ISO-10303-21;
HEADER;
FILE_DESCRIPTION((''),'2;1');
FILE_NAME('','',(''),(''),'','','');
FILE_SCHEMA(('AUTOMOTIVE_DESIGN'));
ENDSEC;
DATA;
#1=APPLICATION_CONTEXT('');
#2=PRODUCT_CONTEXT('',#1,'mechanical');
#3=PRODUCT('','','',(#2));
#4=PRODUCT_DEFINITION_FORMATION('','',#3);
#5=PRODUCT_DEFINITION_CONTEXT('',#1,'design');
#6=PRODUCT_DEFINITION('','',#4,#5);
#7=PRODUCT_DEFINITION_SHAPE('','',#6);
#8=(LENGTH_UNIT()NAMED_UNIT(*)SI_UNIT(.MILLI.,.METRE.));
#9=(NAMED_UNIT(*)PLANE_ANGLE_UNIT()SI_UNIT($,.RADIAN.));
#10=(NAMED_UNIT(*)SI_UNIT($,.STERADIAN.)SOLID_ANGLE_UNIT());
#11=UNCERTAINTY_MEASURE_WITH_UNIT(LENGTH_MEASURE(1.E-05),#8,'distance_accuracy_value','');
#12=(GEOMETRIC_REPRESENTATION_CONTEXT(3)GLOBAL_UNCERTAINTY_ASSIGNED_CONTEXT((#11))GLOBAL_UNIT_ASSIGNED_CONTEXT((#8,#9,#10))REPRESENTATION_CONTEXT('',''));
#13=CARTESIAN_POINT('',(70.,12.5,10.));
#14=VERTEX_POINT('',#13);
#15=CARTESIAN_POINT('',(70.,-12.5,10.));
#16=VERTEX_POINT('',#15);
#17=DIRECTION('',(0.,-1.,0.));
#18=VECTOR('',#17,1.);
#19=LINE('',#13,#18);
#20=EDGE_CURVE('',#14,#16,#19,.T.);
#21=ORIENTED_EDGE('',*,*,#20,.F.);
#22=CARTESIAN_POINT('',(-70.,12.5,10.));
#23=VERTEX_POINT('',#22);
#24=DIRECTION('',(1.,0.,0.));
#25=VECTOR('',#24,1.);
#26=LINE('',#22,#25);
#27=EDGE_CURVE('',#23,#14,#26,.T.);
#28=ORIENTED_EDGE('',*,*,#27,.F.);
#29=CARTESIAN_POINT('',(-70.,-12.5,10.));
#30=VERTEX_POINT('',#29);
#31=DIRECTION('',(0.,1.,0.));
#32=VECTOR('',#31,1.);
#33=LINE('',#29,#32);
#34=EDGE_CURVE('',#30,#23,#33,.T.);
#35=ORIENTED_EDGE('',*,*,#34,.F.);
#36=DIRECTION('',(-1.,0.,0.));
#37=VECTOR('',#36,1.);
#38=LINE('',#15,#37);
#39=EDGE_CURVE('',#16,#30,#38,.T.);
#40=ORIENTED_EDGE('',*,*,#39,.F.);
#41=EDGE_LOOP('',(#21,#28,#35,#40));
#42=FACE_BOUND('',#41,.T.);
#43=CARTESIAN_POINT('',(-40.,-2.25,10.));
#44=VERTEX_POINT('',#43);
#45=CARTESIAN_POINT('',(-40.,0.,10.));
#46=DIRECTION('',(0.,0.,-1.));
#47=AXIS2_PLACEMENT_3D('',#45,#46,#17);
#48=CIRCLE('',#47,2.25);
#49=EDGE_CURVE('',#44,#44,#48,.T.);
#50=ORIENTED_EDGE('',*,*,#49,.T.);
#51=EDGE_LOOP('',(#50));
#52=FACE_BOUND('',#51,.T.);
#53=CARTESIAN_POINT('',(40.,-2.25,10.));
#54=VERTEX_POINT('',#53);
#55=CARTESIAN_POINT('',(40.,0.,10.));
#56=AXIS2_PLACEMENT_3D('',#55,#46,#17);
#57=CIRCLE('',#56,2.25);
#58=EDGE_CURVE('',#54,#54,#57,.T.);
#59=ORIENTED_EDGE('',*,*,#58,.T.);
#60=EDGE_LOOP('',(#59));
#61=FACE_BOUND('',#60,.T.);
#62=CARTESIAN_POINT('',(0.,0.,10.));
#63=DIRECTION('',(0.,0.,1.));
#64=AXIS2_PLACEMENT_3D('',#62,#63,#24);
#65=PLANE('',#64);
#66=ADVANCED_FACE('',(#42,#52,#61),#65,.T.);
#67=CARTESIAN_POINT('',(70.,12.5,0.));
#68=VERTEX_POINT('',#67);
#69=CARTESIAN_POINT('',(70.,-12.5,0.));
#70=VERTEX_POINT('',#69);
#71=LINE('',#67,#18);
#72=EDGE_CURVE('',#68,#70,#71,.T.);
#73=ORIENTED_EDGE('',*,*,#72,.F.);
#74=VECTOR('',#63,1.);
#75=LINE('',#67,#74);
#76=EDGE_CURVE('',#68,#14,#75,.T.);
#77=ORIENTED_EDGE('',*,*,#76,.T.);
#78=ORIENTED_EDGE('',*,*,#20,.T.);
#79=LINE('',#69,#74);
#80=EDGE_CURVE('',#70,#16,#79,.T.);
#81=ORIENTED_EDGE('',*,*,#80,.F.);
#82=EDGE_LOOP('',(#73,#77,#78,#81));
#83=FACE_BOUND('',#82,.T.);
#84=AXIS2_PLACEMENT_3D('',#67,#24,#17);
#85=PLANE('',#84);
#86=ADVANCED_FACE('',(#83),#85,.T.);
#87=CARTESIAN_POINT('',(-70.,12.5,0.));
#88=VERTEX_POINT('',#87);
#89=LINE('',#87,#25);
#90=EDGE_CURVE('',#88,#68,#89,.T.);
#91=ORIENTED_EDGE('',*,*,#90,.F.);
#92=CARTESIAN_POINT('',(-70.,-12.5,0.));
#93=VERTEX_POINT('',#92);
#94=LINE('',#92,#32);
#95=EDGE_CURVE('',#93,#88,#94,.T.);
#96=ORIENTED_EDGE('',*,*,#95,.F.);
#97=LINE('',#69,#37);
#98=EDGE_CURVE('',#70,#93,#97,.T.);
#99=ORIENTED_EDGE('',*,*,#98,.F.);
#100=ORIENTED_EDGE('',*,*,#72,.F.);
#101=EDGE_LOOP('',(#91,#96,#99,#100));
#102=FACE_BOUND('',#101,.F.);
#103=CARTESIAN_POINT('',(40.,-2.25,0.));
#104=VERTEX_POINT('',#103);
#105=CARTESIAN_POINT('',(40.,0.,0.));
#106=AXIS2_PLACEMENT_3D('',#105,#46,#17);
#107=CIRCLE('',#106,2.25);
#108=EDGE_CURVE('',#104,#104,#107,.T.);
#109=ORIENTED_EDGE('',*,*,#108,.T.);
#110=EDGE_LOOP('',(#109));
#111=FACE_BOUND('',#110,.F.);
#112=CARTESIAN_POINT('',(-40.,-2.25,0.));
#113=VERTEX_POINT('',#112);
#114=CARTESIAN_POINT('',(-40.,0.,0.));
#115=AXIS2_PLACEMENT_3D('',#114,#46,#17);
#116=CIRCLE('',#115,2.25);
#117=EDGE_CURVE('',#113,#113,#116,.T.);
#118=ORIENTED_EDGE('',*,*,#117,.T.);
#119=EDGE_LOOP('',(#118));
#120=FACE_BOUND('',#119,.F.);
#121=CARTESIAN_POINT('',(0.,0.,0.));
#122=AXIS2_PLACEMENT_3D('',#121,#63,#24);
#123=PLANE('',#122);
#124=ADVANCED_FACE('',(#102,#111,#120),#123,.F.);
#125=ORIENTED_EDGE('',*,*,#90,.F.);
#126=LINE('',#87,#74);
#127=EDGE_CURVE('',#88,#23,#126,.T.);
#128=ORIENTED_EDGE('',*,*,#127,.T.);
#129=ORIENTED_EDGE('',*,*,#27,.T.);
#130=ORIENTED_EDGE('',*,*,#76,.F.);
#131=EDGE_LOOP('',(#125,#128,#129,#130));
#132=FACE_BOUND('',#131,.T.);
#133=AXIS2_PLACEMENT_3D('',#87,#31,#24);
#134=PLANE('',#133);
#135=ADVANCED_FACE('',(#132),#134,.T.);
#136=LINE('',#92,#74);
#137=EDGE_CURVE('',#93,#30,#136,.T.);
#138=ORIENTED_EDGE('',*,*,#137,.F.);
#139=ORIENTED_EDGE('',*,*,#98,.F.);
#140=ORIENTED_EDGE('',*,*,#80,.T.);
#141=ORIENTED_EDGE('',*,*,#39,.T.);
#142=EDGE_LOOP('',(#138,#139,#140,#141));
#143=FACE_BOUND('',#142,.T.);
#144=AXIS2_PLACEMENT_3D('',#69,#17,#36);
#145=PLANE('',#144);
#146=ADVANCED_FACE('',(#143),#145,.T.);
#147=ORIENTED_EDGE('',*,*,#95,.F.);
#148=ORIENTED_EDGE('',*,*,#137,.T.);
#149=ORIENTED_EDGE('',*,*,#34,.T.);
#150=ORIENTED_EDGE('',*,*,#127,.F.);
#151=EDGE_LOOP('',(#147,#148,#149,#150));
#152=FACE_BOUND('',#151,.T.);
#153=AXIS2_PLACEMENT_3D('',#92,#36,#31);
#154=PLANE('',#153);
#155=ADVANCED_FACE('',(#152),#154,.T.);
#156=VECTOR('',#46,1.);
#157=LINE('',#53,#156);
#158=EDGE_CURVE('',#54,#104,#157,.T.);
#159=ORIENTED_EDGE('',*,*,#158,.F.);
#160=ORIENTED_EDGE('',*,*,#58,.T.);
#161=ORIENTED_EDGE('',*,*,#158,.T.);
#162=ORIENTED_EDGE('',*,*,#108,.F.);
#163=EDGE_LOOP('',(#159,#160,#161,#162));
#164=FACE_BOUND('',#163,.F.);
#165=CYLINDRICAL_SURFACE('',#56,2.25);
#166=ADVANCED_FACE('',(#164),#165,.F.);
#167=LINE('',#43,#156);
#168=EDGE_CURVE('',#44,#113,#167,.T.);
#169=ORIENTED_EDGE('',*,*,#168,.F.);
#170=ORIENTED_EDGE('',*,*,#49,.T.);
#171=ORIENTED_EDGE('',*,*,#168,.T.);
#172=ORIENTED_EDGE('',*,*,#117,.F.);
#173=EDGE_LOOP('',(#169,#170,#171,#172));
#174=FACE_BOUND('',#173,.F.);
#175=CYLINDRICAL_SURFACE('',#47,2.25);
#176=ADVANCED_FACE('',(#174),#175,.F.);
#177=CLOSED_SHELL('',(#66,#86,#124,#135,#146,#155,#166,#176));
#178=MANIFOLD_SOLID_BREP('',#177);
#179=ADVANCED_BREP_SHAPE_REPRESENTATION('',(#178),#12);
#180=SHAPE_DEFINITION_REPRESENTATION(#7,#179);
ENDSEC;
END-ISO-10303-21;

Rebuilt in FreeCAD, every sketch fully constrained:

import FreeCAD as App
import Part
import Sketcher

V = App.Vector
Q = App.Units.Quantity


def add_polygon(sketch, points):
    """Adds a closed chain of lines whose ends are joined by coincident constraints."""
    first, n = sketch.GeometryCount, len(points)
    for a, b in zip(points, points[1:] + points[:1]):
        sketch.addGeometry(Part.LineSegment(App.Vector(*a, 0), App.Vector(*b, 0)), False)
    for i in range(n):
        sketch.addConstraint(Sketcher.Constraint("Coincident", first + i, 2, first + (i + 1) % n, 1))

doc = App.newDocument("Part")
body = doc.addObject("PartDesign::Body", "Body")

sketch1 = body.newObject("Sketcher::SketchObject", "Sketch")
sketch1.AttachmentSupport = (doc.getObject("XY_Plane"), [""])
sketch1.MapMode = "FlatFace"
add_polygon(sketch1, [(70, 12), (-70, 12), (-70, -12), (70, -12)])
sketch1.addConstraint(Sketcher.Constraint("Horizontal", 0))
sketch1.addConstraint(Sketcher.Constraint("Vertical", 1))
sketch1.addConstraint(Sketcher.Constraint("Horizontal", 2))
sketch1.addConstraint(Sketcher.Constraint("Vertical", 3))
sketch1.addConstraint(Sketcher.Constraint("Symmetric", 0, 2, 2, 2, -1, 1))
sketch1.addConstraint(Sketcher.Constraint("DistanceX", 0, 2, 0, 1, Q("140 mm")))
sketch1.addConstraint(Sketcher.Constraint("DistanceY", 1, 2, 1, 1, Q("25 mm")))
pad1 = body.newObject("PartDesign::Pad", "Pad")
pad1.Profile = sketch1
pad1.Length = 10

sketch2 = body.newObject("Sketcher::SketchObject", "Sketch001")
sketch2.AttachmentSupport = (doc.getObject("XY_Plane"), [""])
sketch2.MapMode = "FlatFace"
sketch2.AttachmentOffset = App.Placement(V(0, 0, 10), App.Rotation())
sketch2.addGeometry(Part.Circle(V(-40, 0, 0), V(0, 0, 1), 2.2), False)
sketch2.addGeometry(Part.Circle(V(40, 0, 0), V(0, 0, 1), 2.2), False)
sketch2.addConstraint(Sketcher.Constraint("Equal", 0, 1))
sketch2.addConstraint(Sketcher.Constraint("Symmetric", 0, 3, 1, 3, -1, 1))
sketch2.addConstraint(Sketcher.Constraint("PointOnObject", 0, 3, -1))
sketch2.addConstraint(Sketcher.Constraint("Diameter", 0, Q("4.5 mm")))
sketch2.addConstraint(Sketcher.Constraint("DistanceX", 0, 3, -1, 1, Q("40 mm")))
doc.recompute()
hole = body.newObject("PartDesign::Hole", "Hole")
hole.Profile = sketch2
hole.ThreadType = "None"
hole.Diameter = 4.5
hole.DepthType = "ThroughAll"

doc.recompute()
